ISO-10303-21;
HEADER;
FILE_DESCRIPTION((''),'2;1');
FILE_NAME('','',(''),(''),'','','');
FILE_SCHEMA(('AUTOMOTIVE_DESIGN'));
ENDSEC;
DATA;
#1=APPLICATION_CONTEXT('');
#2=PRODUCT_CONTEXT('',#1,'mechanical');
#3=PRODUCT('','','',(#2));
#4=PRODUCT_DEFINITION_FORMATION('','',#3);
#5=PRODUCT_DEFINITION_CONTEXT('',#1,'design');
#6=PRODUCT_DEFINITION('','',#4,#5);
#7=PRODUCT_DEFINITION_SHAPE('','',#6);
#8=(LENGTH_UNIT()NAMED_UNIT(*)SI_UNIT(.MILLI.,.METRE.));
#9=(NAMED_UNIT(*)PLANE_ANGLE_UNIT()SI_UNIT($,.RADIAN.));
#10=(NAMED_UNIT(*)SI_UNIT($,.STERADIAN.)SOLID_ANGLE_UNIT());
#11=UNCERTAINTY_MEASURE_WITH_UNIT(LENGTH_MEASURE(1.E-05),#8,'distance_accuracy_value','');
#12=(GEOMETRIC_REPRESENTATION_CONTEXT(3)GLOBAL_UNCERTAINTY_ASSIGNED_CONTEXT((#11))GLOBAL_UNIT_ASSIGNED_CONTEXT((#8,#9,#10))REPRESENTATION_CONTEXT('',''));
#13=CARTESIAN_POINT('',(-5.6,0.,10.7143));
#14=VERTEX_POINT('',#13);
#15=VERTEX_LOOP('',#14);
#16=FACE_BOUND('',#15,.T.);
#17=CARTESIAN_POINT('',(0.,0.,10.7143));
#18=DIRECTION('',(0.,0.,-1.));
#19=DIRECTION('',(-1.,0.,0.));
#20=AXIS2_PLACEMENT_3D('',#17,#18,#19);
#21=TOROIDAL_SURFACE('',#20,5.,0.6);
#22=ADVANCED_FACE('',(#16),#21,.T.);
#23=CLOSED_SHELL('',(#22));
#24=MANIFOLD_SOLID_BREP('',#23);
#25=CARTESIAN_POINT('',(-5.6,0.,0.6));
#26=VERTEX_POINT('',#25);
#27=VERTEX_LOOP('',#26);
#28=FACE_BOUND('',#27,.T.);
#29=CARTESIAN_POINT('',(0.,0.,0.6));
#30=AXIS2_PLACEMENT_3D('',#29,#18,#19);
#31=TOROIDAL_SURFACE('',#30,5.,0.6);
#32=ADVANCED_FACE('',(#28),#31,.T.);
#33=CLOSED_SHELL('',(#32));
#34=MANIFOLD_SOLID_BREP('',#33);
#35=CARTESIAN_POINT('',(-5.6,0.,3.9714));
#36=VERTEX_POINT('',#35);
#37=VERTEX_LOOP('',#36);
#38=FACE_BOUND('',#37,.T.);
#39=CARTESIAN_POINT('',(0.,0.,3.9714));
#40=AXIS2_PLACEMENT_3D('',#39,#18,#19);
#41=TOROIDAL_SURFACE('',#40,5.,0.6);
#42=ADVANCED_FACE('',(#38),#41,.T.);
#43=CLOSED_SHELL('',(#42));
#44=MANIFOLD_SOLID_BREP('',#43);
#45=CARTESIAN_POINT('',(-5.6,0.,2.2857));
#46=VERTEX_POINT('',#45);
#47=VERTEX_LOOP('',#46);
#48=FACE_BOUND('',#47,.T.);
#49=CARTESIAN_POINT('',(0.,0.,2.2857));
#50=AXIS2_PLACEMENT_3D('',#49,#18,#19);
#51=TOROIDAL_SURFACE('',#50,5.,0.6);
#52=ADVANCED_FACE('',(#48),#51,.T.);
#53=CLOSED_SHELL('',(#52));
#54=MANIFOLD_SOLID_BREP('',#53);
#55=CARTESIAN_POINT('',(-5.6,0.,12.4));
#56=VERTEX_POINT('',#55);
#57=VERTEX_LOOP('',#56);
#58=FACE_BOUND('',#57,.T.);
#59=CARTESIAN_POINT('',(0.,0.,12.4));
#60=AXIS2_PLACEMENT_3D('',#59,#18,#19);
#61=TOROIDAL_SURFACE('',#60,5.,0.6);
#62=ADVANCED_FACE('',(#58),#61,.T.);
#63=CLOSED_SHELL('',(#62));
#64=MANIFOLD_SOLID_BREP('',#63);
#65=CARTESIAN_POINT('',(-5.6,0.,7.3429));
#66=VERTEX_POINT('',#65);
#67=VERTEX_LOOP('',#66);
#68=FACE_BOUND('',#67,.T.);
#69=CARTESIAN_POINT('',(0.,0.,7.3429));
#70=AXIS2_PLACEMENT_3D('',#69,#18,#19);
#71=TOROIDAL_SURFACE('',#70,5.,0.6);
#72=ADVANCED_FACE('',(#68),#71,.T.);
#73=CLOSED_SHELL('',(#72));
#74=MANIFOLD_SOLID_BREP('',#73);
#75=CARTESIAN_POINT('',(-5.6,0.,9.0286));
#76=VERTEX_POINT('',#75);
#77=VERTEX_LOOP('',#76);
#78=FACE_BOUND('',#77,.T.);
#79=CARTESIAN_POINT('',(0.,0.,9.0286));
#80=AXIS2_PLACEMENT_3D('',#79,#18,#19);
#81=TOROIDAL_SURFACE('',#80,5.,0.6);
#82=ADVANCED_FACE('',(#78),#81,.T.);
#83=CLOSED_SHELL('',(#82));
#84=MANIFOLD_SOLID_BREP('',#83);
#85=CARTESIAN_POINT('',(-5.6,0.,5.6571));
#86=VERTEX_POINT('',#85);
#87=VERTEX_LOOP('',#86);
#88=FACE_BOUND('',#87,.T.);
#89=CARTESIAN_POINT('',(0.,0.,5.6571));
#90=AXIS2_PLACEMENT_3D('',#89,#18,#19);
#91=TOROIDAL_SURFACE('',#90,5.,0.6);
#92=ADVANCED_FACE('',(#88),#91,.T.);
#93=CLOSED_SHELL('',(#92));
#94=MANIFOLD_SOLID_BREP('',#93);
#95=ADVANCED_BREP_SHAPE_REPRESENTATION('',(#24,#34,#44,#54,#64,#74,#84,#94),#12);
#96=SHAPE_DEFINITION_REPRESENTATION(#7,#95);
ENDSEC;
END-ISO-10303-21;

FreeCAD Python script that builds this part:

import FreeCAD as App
import Part
import Sketcher
Q = App.Units.Quantity

doc = App.newDocument("Part")
params = doc.addObject("Spreadsheet::Sheet", "Params")
for row, (alias, value) in enumerate([
    ("sketch1_diameter", "1.2 mm"),
    ("revolution_angle", "360 deg"),
], start=1):
    params.set(f"A{row}", alias)
    params.set(f"B{row}", "=" + value)
    params.setAlias(f"B{row}", alias)

body = doc.addObject("PartDesign::Body", "Body")
body.AllowCompound = True

# Sketch on XZ plane
sketch1 = body.newObject("Sketcher::SketchObject", "Sketch")
sketch1.AttachmentSupport = (doc.getObject("XZ_Plane"), [""])
sketch1.MapMode = "FlatFace"
sketch1.addGeometry([
    Part.Circle(App.Vector(5, 0.6, 0), App.Vector(0, 0, 1), 0.6),  # 0
    Part.Circle(App.Vector(5, 2.3, 0), App.Vector(0, 0, 1), 0.6),  # 1
    Part.Circle(App.Vector(5, 4, 0), App.Vector(0, 0, 1), 0.6),  # 2
    Part.Circle(App.Vector(5, 5.7, 0), App.Vector(0, 0, 1), 0.6),  # 3
    Part.Circle(App.Vector(5, 7.3, 0), App.Vector(0, 0, 1), 0.6),  # 4
    Part.Circle(App.Vector(5, 9, 0), App.Vector(0, 0, 1), 0.6),  # 5
    Part.Circle(App.Vector(5, 10.7, 0), App.Vector(0, 0, 1), 0.6),  # 6
    Part.Circle(App.Vector(5, 12.4, 0), App.Vector(0, 0, 1), 0.6),  # 7
], False)
sketch1.addConstraint([
    Sketcher.Constraint("Equal", 0, 1),
    Sketcher.Constraint("Equal", 1, 2),
    Sketcher.Constraint("Equal", 2, 3),
    Sketcher.Constraint("Equal", 3, 4),
    Sketcher.Constraint("Equal", 4, 5),
    Sketcher.Constraint("Equal", 5, 6),
    Sketcher.Constraint("Equal", 6, 7),
    Sketcher.Constraint("Vertical", 0, 3, 1, 3),
    Sketcher.Constraint("Vertical", 1, 3, 2, 3),
    Sketcher.Constraint("Vertical", 2, 3, 3, 3),
    Sketcher.Constraint("Vertical", 3, 3, 4, 3),
    Sketcher.Constraint("Vertical", 4, 3, 5, 3),
    Sketcher.Constraint("Vertical", 5, 3, 6, 3),
    Sketcher.Constraint("Vertical", 6, 3, 7, 3),
    Sketcher.Constraint("Diameter", 0, Q("1.2 mm")),
    Sketcher.Constraint("DistanceX", -1, 1, 0, 3, Q("5 mm")),
    Sketcher.Constraint("DistanceY", -1, 1, 0, 3, Q("0.6 mm")),
    Sketcher.Constraint("DistanceY", -1, 1, 7, 3, Q("12.4 mm")),
    Sketcher.Constraint("DistanceY", -1, 1, 1, 3, Q("2.2857 mm")),
    Sketcher.Constraint("DistanceY", -1, 1, 2, 3, Q("3.9714 mm")),
    Sketcher.Constraint("DistanceY", -1, 1, 3, 3, Q("5.6571 mm")),
    Sketcher.Constraint("DistanceY", -1, 1, 4, 3, Q("7.3429 mm")),
    Sketcher.Constraint("DistanceY", -1, 1, 5, 3, Q("9.0286 mm")),
    Sketcher.Constraint("DistanceY", -1, 1, 6, 3, Q("10.7143 mm")),
])
sketch1.setExpression("Constraints[14]", "Params.sketch1_diameter")
revolution = body.newObject("PartDesign::Revolution", "Revolution")
revolution.Profile = sketch1
revolution.ReferenceAxis = (sketch1, ["V_Axis"])
revolution.setExpression("Angle", "Params.revolution_angle")

doc.recompute()
